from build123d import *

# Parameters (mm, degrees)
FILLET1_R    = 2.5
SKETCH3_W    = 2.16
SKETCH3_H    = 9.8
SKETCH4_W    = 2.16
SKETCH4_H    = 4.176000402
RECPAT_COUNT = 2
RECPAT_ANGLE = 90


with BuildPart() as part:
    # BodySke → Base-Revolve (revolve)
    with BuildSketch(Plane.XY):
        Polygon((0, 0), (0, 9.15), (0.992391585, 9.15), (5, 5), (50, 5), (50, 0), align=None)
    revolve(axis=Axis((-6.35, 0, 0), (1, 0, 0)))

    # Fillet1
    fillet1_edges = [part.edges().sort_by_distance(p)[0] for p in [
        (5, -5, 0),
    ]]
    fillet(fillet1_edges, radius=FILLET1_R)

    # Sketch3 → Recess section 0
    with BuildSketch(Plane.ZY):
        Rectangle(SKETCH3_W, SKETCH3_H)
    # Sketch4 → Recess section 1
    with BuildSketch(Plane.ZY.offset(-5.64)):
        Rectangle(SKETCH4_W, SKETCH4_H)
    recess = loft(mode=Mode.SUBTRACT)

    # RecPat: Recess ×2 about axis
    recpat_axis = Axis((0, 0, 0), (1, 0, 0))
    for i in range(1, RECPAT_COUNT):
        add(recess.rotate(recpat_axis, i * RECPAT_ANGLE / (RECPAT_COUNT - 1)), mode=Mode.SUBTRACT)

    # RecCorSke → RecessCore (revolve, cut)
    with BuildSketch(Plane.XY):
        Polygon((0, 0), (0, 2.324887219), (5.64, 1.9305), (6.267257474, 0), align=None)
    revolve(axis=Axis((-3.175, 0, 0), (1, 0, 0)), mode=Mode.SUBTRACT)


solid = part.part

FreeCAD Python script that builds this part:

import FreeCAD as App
import Part
import Sketcher

V = App.Vector
Q = App.Units.Quantity


def edges_at(feature, points):
    """Names of the edges that pass closest to the given points."""
    edges = feature.Shape.Edges
    near = lambda p: min(range(len(edges)), key=lambda i: edges[i].distToShape(Part.Vertex(*p))[0])
    return sorted({f"Edge{near(p) + 1}" for p in points})


def add_polygon(sketch, points):
    """Adds a closed chain of lines whose ends are joined by coincident constraints."""
    first, n = sketch.GeometryCount, len(points)
    for a, b in zip(points, points[1:] + points[:1]):
        sketch.addGeometry(Part.LineSegment(App.Vector(*a, 0), App.Vector(*b, 0)), False)
    for i in range(n):
        sketch.addConstraint(Sketcher.Constraint("Coincident", first + i, 2, first + (i + 1) % n, 1))

doc = App.newDocument("Part")
body = doc.addObject("PartDesign::Body", "Body")

# Sketch on XY plane
sketch1 = body.newObject("Sketcher::SketchObject", "Sketch")
sketch1.AttachmentSupport = (doc.getObject("XY_Plane"), [""])
sketch1.MapMode = "FlatFace"
add_polygon(sketch1, [(0, 9.2), (0, 0), (50, 0), (50, 5), (5, 5), (1, 9.2)])  # lines 0-5
sketch1.addConstraint(Sketcher.Constraint("Vertical", 0))
sketch1.addConstraint(Sketcher.Constraint("Horizontal", 1))
sketch1.addConstraint(Sketcher.Constraint("Vertical", 2))
sketch1.addConstraint(Sketcher.Constraint("Horizontal", 3))
sketch1.addConstraint(Sketcher.Constraint("Horizontal", 5))
sketch1.addConstraint(Sketcher.Constraint("Coincident", 0, 2, -1, 1))
sketch1.addConstraint(Sketcher.Constraint("DistanceX", 1, 1, 1, 2, Q("50 mm")))
sketch1.addConstraint(Sketcher.Constraint("DistanceX", 3, 2, 3, 1, Q("45 mm")))
sketch1.addConstraint(Sketcher.Constraint("DistanceY", 2, 1, 2, 2, Q("5 mm")))
sketch1.addConstraint(Sketcher.Constraint("Angle", 4, Q("134 deg")))
sketch1.addConstraint(Sketcher.Constraint("DistanceY", 0, 2, 0, 1, Q("9.15 mm")))
revolution = body.newObject("PartDesign::Revolution", "Revolution")
revolution.Profile = sketch1
revolution.ReferenceAxis = (sketch1, ["H_Axis"])
revolution.Angle = 360
doc.recompute()

fillet = body.newObject("PartDesign::Fillet", "Fillet")
fillet.Base = (revolution, edges_at(revolution, [(5, -5, 0)]))
fillet.Radius = 2.5

# Sketch on YZ plane
sketch2 = body.newObject("Sketcher::SketchObject", "Sketch001")
sketch2.AttachmentSupport = (doc.getObject("YZ_Plane"), [""])
sketch2.MapMode = "FlatFace"
add_polygon(sketch2, [(4.9, -1.1), (-4.9, -1.1), (-4.9, 1.1), (4.9, 1.1)])  # lines 0-3
sketch2.addConstraint(Sketcher.Constraint("Horizontal", 0))
sketch2.addConstraint(Sketcher.Constraint("Vertical", 1))
sketch2.addConstraint(Sketcher.Constraint("Horizontal", 2))
sketch2.addConstraint(Sketcher.Constraint("Vertical", 3))
sketch2.addConstraint(Sketcher.Constraint("Symmetric", 0, 2, 2, 2, -1, 1))
sketch2.addConstraint(Sketcher.Constraint("DistanceX", 0, 2, 0, 1, Q("9.8 mm")))
sketch2.addConstraint(Sketcher.Constraint("DistanceY", 1, 1, 1, 2, Q("2.16 mm")))

# Sketch on YZ plane
sketch3 = body.newObject("Sketcher::SketchObject", "Sketch002")
sketch3.AttachmentSupport = (doc.getObject("YZ_Plane"), [""])
sketch3.MapMode = "FlatFace"
sketch3.AttachmentOffset = App.Placement(V(0, 0, 5.64), App.Rotation())
add_polygon(sketch3, [(2.1, -1.1), (-2.1, -1.1), (-2.1, 1.1), (2.1, 1.1)])  # lines 0-3
sketch3.addConstraint(Sketcher.Constraint("Horizontal", 0))
sketch3.addConstraint(Sketcher.Constraint("Vertical", 1))
sketch3.addConstraint(Sketcher.Constraint("Horizontal", 2))
sketch3.addConstraint(Sketcher.Constraint("Vertical", 3))
sketch3.addConstraint(Sketcher.Constraint("Symmetric", 0, 2, 2, 2, -1, 1))
sketch3.addConstraint(Sketcher.Constraint("DistanceY", 1, 1, 1, 2, Q("2.16 mm")))
sketch3.addConstraint(Sketcher.Constraint("DistanceX", 0, 2, 0, 1, Q("4.176 mm")))

subtractiveloft = body.newObject("PartDesign::SubtractiveLoft", "SubtractiveLoft")
subtractiveloft.Profile = sketch2
subtractiveloft.Sections = [sketch3]
doc.recompute()

polarpattern = body.newObject("PartDesign::PolarPattern", "PolarPattern")
polarpattern.Originals = [subtractiveloft]
polarpattern.Axis = (doc.getObject("X_Axis"), [""])
polarpattern.Angle = 90
polarpattern.Occurrences = 2
body.Tip = polarpattern

# Sketch on XY plane
sketch4 = body.newObject("Sketcher::SketchObject", "Sketch003")
sketch4.AttachmentSupport = (doc.getObject("XY_Plane"), [""])
sketch4.MapMode = "FlatFace"
add_polygon(sketch4, [(0, 2.3), (0, 0), (6.3, 0), (5.6, 1.9)])  # lines 0-3
sketch4.addConstraint(Sketcher.Constraint("Vertical", 0))
sketch4.addConstraint(Sketcher.Constraint("Horizontal", 1))
sketch4.addConstraint(Sketcher.Constraint("Coincident", 0, 2, -1, 1))
sketch4.addConstraint(Sketcher.Constraint("Angle", 2, Q("108 deg")))
sketch4.addConstraint(Sketcher.Constraint("Angle", 3, Q("176 deg")))
sketch4.addConstraint(Sketcher.Constraint("DistanceX", -1, 1, 2, 2, Q("5.64 mm")))
sketch4.addConstraint(Sketcher.Constraint("DistanceY", -1, 1, 2, 2, Q("1.9305 mm")))
groove = body.newObject("PartDesign::Groove", "Groove")
groove.Profile = sketch4
groove.ReferenceAxis = (sketch4, ["H_Axis"])
groove.Angle = 360

doc.recompute()
